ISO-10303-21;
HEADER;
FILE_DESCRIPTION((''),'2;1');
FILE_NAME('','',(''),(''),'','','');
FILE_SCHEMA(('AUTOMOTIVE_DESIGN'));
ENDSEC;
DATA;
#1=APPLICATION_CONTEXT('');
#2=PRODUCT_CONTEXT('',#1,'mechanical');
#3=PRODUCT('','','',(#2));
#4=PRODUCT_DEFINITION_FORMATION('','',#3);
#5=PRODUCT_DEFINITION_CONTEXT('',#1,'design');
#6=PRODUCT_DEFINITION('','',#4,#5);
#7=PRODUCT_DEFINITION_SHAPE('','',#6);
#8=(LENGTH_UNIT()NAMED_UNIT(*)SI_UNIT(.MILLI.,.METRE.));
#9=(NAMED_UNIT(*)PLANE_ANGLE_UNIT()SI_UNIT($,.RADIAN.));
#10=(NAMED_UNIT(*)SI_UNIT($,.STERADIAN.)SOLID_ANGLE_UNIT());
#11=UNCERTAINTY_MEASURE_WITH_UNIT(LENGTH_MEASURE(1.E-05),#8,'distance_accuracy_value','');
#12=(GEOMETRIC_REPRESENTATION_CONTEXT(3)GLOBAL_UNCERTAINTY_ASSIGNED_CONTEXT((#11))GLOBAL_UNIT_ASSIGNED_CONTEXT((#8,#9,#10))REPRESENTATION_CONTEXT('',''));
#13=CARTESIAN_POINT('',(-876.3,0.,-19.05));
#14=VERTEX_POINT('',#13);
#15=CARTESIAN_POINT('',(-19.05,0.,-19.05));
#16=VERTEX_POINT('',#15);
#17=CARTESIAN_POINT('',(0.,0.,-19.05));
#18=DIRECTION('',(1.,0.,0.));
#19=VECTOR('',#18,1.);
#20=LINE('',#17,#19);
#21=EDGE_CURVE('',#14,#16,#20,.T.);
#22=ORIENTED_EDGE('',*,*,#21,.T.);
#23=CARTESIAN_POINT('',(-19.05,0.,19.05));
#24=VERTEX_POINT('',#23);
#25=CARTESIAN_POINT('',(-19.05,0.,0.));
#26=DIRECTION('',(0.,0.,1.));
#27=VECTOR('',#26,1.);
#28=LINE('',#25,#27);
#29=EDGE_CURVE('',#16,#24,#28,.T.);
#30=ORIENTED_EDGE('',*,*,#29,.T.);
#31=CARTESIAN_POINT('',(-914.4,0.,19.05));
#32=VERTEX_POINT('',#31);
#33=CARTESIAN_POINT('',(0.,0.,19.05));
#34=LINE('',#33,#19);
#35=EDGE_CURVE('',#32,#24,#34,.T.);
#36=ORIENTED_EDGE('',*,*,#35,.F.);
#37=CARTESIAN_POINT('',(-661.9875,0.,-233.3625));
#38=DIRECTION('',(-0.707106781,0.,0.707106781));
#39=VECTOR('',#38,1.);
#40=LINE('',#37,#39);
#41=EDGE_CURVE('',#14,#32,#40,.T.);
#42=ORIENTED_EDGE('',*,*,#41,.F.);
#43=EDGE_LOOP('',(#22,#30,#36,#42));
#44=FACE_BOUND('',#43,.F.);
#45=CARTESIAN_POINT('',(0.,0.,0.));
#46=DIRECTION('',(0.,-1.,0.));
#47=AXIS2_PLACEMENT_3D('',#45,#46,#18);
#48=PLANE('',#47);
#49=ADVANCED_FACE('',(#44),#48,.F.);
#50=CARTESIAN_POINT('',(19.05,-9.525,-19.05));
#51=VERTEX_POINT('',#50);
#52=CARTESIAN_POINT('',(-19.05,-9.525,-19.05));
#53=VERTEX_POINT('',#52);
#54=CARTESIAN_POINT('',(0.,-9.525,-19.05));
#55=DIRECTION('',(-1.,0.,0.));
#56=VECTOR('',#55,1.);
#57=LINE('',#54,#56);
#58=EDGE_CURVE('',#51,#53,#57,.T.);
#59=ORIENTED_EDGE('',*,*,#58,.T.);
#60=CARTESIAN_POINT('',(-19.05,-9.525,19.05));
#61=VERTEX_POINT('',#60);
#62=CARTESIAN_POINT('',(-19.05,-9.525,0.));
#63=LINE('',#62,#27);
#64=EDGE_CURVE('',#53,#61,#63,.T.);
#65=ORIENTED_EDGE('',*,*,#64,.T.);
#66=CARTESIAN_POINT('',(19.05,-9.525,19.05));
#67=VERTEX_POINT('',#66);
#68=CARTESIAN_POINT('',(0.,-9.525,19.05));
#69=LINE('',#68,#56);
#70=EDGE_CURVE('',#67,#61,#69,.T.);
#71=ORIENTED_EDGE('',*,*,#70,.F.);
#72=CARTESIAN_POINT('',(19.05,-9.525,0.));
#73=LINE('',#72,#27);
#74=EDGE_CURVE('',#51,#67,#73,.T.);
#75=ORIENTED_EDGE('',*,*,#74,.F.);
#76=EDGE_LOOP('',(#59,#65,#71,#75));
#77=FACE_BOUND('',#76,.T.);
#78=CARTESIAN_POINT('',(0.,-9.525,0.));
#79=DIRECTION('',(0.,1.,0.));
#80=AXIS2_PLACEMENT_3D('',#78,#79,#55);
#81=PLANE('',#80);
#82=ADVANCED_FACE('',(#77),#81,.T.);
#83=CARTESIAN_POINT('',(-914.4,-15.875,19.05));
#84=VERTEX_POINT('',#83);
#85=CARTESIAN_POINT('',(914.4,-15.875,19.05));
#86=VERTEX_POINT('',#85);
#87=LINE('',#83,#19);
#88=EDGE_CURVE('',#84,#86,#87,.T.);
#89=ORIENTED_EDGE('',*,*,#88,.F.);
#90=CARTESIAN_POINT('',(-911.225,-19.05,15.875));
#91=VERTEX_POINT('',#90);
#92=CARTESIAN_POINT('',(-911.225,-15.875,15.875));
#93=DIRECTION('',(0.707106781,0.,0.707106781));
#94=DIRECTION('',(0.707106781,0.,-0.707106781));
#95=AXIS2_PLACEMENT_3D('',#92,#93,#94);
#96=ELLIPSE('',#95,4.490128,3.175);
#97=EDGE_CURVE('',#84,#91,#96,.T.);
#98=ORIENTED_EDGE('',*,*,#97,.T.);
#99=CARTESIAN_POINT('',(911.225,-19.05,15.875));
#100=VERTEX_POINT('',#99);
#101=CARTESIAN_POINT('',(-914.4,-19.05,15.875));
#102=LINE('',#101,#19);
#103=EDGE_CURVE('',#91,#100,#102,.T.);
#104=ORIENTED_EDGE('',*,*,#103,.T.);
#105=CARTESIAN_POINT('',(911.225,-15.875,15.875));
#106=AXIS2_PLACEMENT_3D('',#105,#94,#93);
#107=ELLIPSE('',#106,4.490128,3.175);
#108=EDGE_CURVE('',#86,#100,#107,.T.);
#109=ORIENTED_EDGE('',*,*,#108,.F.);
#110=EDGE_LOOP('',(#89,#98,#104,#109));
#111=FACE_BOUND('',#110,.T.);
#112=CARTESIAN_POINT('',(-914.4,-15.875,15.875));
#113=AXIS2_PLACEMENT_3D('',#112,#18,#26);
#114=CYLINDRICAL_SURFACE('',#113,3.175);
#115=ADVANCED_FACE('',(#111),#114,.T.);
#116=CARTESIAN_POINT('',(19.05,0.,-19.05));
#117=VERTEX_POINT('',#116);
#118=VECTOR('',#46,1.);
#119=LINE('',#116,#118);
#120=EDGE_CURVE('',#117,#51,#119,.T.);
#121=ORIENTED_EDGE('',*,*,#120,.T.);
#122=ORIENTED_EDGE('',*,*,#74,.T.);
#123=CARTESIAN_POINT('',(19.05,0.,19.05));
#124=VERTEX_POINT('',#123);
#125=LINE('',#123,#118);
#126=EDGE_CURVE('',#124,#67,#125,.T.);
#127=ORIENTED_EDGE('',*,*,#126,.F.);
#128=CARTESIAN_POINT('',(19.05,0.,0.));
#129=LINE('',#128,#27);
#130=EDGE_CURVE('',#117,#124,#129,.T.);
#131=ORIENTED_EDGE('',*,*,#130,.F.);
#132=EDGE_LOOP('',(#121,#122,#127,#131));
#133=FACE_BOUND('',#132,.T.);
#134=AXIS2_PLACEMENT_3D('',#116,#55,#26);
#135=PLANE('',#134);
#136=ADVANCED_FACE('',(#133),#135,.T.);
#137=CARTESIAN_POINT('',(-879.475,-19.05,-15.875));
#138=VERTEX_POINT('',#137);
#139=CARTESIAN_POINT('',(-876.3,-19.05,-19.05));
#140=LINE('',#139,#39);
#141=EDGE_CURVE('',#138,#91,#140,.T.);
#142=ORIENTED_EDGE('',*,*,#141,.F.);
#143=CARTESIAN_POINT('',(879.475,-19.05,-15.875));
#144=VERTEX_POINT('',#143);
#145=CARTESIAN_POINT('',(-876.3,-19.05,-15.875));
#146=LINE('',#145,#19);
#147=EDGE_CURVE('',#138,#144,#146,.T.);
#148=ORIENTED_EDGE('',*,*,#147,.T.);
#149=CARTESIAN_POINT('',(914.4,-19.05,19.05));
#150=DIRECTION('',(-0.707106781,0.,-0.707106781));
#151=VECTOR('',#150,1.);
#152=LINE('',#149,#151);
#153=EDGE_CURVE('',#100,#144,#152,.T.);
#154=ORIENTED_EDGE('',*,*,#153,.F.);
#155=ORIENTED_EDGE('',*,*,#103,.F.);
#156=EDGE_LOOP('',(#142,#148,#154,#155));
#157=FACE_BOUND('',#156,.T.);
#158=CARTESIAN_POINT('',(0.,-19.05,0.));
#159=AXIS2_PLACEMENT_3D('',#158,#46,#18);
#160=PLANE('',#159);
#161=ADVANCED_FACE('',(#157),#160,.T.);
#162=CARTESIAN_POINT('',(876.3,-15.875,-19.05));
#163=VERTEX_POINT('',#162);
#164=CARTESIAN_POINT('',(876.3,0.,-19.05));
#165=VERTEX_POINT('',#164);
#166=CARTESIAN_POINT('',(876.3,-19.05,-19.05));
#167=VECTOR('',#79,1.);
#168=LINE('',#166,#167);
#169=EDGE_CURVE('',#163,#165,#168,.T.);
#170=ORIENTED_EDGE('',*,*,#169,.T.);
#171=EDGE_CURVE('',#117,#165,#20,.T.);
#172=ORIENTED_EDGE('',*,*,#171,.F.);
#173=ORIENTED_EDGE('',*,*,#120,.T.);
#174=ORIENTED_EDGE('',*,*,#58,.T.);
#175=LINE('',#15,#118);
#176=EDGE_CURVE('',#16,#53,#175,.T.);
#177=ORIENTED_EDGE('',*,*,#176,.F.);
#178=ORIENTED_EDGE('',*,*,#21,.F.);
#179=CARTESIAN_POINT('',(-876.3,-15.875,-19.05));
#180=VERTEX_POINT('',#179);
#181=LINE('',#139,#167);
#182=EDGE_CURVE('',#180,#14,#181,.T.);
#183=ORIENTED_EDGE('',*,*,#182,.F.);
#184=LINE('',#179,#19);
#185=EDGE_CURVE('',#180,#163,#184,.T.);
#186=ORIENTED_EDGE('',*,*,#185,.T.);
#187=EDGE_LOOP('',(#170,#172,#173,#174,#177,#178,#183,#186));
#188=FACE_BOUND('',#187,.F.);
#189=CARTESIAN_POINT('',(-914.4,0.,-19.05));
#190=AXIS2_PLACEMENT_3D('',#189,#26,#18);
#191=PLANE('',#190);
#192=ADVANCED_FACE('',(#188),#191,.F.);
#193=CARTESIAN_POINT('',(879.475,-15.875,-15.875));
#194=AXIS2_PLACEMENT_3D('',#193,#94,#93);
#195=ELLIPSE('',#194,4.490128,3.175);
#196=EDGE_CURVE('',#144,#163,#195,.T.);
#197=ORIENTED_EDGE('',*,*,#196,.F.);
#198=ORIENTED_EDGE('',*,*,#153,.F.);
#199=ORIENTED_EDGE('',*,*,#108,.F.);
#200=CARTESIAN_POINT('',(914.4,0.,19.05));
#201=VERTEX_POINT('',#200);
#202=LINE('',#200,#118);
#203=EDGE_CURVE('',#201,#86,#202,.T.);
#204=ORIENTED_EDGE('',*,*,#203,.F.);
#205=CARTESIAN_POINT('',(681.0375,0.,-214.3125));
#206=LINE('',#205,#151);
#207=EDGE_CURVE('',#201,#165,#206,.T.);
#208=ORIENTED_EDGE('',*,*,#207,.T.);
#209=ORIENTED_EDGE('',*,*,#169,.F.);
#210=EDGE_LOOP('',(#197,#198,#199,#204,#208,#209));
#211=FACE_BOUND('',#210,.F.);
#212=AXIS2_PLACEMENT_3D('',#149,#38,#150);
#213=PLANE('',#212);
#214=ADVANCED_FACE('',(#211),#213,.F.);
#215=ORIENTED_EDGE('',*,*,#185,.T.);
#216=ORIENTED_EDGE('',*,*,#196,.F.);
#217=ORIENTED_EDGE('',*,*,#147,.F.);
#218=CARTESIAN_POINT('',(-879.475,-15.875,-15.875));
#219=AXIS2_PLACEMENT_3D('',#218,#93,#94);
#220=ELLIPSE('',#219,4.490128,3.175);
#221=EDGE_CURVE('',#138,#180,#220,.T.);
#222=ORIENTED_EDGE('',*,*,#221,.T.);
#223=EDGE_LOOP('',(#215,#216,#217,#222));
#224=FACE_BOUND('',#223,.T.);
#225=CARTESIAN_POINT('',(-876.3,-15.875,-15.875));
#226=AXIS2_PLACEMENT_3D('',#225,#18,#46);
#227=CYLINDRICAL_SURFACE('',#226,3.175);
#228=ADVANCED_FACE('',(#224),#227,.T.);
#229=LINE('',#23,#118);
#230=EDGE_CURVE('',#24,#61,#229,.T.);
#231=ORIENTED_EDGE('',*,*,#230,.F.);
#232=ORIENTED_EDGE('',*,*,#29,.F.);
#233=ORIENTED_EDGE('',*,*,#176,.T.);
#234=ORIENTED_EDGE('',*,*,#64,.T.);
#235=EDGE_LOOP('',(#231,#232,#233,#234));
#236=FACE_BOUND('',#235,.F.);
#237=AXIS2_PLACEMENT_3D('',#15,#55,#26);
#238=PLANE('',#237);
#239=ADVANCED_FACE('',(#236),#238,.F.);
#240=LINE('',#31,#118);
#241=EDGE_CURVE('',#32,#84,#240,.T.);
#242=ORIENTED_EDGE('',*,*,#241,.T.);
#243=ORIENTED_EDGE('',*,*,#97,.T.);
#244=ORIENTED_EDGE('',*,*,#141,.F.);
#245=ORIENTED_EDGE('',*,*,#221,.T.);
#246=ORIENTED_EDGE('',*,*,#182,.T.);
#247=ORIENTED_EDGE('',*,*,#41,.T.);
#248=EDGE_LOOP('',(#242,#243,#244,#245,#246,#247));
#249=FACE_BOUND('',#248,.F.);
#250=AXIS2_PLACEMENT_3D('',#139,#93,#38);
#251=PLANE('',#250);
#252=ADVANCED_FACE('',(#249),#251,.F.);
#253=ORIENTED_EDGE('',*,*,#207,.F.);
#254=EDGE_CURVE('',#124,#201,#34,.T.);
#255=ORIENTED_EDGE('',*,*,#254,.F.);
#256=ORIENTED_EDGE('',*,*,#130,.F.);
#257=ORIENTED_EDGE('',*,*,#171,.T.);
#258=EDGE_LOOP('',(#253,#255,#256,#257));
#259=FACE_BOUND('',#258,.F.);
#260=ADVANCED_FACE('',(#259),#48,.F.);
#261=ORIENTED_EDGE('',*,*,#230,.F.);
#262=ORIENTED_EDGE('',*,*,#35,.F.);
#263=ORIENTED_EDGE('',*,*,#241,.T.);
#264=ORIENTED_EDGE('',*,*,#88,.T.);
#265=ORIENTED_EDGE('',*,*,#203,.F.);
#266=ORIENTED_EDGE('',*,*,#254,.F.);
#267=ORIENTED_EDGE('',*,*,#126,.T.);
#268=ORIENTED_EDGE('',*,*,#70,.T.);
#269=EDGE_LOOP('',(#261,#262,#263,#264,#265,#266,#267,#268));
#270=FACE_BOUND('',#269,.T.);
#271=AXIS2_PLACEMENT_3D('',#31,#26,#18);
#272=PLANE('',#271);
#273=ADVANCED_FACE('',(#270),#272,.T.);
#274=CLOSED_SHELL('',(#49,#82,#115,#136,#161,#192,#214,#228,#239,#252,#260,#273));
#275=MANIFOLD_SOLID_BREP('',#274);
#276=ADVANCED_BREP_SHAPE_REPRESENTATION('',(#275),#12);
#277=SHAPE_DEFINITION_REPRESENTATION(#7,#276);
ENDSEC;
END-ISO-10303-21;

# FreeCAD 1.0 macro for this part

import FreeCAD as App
import Part
import Sketcher
from FreeCAD import Vector
Q = App.Units.Quantity


def edges_at(feature, points):
    """Names of the edges that pass closest to the given points."""
    edges = feature.Shape.Edges
    near = lambda p: min(range(len(edges)), key=lambda i: edges[i].distToShape(Part.Vertex(*p))[0])
    return sorted({f"Edge{near(p) + 1}" for p in points})


def add_polygon(sketch, points):
    """Adds a closed chain of lines whose ends are joined by coincident constraints."""
    first, n = sketch.GeometryCount, len(points)
    for a, b in zip(points, points[1:] + points[:1]):
        sketch.addGeometry(Part.LineSegment(App.Vector(*a, 0), App.Vector(*b, 0)), False)
    for i in range(n):
        sketch.addConstraint(Sketcher.Constraint("Coincident", first + i, 2, first + (i + 1) % n, 1))

doc = App.newDocument("Part")
body = doc.addObject("PartDesign::Body", "Body")

# Sketch on XZ plane
sketch1 = doc.addObject("Sketcher::SketchObject", "Sketch")
body.addObject(sketch1)
sketch1.AttachmentSupport = (doc.XZ_Plane, [""])
sketch1.MapMode = "FlatFace"
add_polygon(sketch1, [(-914, 19), (-914, -19), (914, -19), (914, 19)])  # lines 0-3
sketch1.addConstraint([
    Sketcher.Constraint("Vertical", 0),
    Sketcher.Constraint("Horizontal", 1),
    Sketcher.Constraint("Vertical", 2),
    Sketcher.Constraint("Horizontal", 3),
    Sketcher.Constraint("Symmetric", 0, 2, 2, 2, -1, 1),
    Sketcher.Constraint("DistanceX", 1, 1, 1, 2, Q("72 in")),
    Sketcher.Constraint("DistanceY", 0, 2, 0, 1, Q("1.5 in")),
])
pad1 = doc.addObject("PartDesign::Pad", "Pad")
body.addObject(pad1)
pad1.Profile = sketch1
pad1.Length = Q("0.75 in")

# Sketch on XZ plane
sketch2 = doc.addObject("Sketcher::SketchObject", "Sketch001")
body.addObject(sketch2)
sketch2.AttachmentSupport = (doc.XZ_Plane, [""])
sketch2.MapMode = "FlatFace"
add_polygon(sketch2, [(19, 19), (19, -19), (-19, -19), (-19, 19)])  # lines 0-3
sketch2.addConstraint([
    Sketcher.Constraint("Vertical", 0),
    Sketcher.Constraint("Horizontal", 1),
    Sketcher.Constraint("Vertical", 2),
    Sketcher.Constraint("Horizontal", 3),
    Sketcher.Constraint("Symmetric", 0, 2, 2, 2, -1, 1),
    Sketcher.Constraint("Equal", 3, 0),
    Sketcher.Constraint("DistanceX", 1, 2, 1, 1, Q("1.5 in")),
])
pocket1 = doc.addObject("PartDesign::Pocket", "Pocket")
body.addObject(pocket1)
pocket1.Profile = sketch2
pocket1.Length = Q("0.375 in")
pocket1.Reversed = True

# Sketch on XZ plane
sketch3 = doc.addObject("Sketcher::SketchObject", "Sketch002")
body.addObject(sketch3)
sketch3.AttachmentSupport = (doc.XZ_Plane, [""])
sketch3.MapMode = "FlatFace"
sketch3.AttachmentOffset = App.Placement(Vector(0, 0, 0.75 * 25.4), App.Rotation())
add_polygon(sketch3, [(-876, -19), (-914, 19), (-914, -19)])  # lines 0-2
add_polygon(sketch3, [(876, -19), (914, -19), (914, 19)])  # lines 3-5
sketch3.addConstraint([
    Sketcher.Constraint("Vertical", 1),
    Sketcher.Constraint("Horizontal", 2),
    Sketcher.Constraint("Horizontal", 3),
    Sketcher.Constraint("Vertical", 4),
    Sketcher.Constraint("Symmetric", 0, 2, 3, 2, -1, 1),
    Sketcher.Constraint("Symmetric", 2, 2, 5, 2, -2),
    Sketcher.Constraint("Perpendicular", 0, 5),
    Sketcher.Constraint("Horizontal", 0, 2, 4, 2),
    Sketcher.Constraint("DistanceX", 2, 1, 2, 2, Q("1.5 in")),
    Sketcher.Constraint("DistanceX", 0, 2, -1, 1, Q("36 in")),
])
pocket2 = doc.addObject("PartDesign::Pocket", "Pocket001")
body.addObject(pocket2)
pocket2.Profile = sketch3
pocket2.Type = "ThroughAll"
doc.recompute()

fillet = doc.addObject("PartDesign::Fillet", "Fillet")
body.addObject(fillet)
fillet.Base = (pocket2, edges_at(pocket2, [(0, -19.05, 19.05), (0, -19.05, -19.05)]))
fillet.Radius = Q("0.125 in")

doc.recompute()
